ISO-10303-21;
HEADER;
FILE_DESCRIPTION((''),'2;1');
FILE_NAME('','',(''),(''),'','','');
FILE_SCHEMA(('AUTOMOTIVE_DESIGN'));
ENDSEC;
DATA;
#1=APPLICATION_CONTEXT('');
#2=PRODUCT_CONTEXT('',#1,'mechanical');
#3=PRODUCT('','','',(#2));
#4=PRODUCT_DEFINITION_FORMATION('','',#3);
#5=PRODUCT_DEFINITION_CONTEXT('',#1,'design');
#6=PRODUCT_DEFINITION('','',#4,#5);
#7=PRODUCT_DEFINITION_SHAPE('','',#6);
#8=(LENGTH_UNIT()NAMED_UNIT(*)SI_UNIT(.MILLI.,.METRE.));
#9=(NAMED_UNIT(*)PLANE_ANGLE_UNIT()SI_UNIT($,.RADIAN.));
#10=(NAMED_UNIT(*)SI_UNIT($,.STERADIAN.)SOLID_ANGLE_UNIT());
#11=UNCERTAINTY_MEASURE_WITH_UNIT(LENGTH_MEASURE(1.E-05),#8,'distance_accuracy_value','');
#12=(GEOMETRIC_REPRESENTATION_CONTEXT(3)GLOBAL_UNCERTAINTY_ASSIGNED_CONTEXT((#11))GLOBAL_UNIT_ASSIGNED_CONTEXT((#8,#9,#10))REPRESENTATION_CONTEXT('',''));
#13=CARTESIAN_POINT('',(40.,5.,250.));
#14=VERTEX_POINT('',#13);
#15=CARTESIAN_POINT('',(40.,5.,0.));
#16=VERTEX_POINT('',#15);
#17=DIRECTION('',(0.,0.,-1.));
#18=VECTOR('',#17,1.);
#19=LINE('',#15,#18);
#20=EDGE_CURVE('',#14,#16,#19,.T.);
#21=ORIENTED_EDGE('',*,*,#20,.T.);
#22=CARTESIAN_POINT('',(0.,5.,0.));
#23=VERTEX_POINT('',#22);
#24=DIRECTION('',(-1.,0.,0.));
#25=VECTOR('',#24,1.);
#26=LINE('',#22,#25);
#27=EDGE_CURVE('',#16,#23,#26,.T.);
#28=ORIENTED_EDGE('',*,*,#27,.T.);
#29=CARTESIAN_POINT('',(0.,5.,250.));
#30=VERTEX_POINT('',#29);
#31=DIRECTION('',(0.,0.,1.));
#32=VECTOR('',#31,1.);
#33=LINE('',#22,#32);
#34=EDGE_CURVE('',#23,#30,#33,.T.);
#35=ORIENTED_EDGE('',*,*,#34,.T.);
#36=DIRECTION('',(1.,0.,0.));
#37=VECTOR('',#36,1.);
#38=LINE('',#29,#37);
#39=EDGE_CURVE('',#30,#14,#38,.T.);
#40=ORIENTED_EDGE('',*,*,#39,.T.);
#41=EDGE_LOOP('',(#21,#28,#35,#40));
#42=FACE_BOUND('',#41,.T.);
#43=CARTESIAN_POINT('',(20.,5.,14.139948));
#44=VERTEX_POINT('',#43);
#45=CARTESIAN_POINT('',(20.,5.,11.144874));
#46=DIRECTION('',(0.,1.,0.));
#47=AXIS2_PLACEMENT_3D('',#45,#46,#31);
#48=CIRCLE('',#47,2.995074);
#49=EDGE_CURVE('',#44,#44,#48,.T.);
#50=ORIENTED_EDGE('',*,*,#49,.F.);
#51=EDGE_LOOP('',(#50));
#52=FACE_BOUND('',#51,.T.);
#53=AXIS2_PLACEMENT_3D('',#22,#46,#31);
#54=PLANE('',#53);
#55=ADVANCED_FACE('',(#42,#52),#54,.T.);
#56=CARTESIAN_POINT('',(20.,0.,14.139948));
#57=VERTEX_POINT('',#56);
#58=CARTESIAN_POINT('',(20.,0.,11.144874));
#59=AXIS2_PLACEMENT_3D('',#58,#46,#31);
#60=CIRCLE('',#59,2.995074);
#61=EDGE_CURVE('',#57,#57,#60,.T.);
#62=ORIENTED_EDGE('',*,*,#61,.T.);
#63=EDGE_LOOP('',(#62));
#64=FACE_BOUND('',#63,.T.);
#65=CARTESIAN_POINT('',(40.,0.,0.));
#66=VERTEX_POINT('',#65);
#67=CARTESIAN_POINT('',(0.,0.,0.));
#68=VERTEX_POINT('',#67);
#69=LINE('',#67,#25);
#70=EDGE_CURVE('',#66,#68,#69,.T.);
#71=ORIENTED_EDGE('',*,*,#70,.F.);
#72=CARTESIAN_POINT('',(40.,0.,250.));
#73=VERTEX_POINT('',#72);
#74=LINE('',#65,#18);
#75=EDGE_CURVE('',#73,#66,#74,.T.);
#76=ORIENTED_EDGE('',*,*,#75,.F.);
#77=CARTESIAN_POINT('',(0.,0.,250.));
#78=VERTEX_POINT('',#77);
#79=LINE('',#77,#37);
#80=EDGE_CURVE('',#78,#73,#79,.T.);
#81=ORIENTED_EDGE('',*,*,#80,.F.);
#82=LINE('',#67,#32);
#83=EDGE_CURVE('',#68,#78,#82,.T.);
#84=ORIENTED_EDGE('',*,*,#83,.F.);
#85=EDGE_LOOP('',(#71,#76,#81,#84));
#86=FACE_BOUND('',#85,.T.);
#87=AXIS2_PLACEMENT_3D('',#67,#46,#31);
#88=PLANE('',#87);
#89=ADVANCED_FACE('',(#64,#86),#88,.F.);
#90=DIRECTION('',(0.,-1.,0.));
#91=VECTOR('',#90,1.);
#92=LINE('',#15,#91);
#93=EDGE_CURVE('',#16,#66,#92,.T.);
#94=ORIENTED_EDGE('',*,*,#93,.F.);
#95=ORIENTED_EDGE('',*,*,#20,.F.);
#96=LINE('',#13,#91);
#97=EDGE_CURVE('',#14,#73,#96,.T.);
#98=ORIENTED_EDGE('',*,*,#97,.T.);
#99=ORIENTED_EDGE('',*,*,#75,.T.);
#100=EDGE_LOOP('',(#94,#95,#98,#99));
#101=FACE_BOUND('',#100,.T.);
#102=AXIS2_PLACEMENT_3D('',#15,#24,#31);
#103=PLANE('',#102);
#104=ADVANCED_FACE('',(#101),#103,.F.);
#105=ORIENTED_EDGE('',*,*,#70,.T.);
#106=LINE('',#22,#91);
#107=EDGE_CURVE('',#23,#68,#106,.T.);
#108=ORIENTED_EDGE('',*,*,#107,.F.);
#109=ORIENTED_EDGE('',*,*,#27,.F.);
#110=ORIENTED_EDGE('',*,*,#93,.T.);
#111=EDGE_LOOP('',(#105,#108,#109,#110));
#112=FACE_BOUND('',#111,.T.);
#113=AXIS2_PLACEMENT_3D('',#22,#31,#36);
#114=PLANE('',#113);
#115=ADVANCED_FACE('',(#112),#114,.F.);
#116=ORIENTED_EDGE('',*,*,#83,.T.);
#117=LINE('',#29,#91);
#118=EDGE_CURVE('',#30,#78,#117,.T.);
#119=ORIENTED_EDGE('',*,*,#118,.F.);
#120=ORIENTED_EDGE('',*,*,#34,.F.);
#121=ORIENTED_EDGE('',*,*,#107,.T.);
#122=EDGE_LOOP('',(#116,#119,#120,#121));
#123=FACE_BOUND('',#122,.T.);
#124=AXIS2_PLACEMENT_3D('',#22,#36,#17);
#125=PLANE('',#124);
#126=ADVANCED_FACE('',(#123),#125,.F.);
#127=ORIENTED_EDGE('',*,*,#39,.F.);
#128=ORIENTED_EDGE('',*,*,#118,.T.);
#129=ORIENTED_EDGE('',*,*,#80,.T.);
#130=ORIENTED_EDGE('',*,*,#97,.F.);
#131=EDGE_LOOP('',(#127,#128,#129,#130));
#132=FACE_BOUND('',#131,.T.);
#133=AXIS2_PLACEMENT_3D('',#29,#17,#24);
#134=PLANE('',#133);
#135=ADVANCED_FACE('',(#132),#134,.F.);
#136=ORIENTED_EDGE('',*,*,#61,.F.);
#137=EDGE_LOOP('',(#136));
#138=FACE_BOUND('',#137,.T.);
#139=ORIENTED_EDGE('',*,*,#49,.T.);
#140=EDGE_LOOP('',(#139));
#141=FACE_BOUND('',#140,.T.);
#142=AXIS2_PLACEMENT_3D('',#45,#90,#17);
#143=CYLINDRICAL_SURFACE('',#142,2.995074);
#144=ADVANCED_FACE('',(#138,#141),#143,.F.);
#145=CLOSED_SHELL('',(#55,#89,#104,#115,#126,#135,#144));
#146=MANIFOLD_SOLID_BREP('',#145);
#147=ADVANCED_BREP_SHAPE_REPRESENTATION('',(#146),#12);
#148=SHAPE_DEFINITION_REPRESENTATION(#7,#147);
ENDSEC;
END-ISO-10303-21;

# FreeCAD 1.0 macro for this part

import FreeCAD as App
import Part
import Sketcher

V = App.Vector


def add_polygon(sketch, points):
    """Adds a closed chain of lines whose ends are joined by coincident constraints."""
    first, n = sketch.GeometryCount, len(points)
    for a, b in zip(points, points[1:] + points[:1]):
        sketch.addGeometry(Part.LineSegment(App.Vector(*a, 0), App.Vector(*b, 0)), False)
    for i in range(n):
        sketch.addConstraint(Sketcher.Constraint("Coincident", first + i, 2, first + (i + 1) % n, 1))

doc = App.newDocument("Part")
params = doc.addObject("Spreadsheet::Sheet", "Params")
for row, (alias, value) in enumerate([
    ("sketch1_width", "40 mm"),
    ("sketch1_height", "250 mm"),
    ("pad1_length", "5 mm"),
], start=1):
    params.set(f"A{row}", alias)
    params.set(f"B{row}", "=" + value)
    params.setAlias(f"B{row}", alias)

body = doc.addObject("PartDesign::Body", "Body")

# Sketch on XZ plane
sketch1 = body.newObject("Sketcher::SketchObject", "Sketch")
sketch1.AttachmentSupport = (doc.getObject("XZ_Plane"), [""])
sketch1.MapMode = "FlatFace"
add_polygon(sketch1, [(0, 0), (0, 250), (40, 250), (40, 0)])  # lines 0-3
sketch1.addGeometry(Part.Circle(V(20, 11.144874, 0), V(0, 0, 1), 2.995074), False)  # 4
sketch1.addConstraint([
    Sketcher.Constraint("Vertical", 0),
    Sketcher.Constraint("Horizontal", 1),
    Sketcher.Constraint("Vertical", 2),
    Sketcher.Constraint("Horizontal", 3),
    Sketcher.Constraint("Coincident", 3, 2, -1, 1),
    Sketcher.Constraint("DistanceX", 1, 1, 1, 2, 40.0),
    Sketcher.Constraint("DistanceY", 0, 1, 0, 2, 250.0),
    Sketcher.Constraint("DistanceX", -1, 1, 4, 3, 20.0),
    Sketcher.Constraint("Diameter", 4, 5.990148),
    Sketcher.Constraint("DistanceY", -1, 1, 4, 3, 11.144874),
])
sketch1.setExpression("Constraints[9]", "Params.sketch1_width")
sketch1.setExpression("Constraints[10]", "Params.sketch1_height")
pad1 = body.newObject("PartDesign::Pad", "Pad")
pad1.Profile = sketch1
pad1.setExpression("Length", "Params.pad1_length")
pad1.Reversed = True

doc.recompute()
